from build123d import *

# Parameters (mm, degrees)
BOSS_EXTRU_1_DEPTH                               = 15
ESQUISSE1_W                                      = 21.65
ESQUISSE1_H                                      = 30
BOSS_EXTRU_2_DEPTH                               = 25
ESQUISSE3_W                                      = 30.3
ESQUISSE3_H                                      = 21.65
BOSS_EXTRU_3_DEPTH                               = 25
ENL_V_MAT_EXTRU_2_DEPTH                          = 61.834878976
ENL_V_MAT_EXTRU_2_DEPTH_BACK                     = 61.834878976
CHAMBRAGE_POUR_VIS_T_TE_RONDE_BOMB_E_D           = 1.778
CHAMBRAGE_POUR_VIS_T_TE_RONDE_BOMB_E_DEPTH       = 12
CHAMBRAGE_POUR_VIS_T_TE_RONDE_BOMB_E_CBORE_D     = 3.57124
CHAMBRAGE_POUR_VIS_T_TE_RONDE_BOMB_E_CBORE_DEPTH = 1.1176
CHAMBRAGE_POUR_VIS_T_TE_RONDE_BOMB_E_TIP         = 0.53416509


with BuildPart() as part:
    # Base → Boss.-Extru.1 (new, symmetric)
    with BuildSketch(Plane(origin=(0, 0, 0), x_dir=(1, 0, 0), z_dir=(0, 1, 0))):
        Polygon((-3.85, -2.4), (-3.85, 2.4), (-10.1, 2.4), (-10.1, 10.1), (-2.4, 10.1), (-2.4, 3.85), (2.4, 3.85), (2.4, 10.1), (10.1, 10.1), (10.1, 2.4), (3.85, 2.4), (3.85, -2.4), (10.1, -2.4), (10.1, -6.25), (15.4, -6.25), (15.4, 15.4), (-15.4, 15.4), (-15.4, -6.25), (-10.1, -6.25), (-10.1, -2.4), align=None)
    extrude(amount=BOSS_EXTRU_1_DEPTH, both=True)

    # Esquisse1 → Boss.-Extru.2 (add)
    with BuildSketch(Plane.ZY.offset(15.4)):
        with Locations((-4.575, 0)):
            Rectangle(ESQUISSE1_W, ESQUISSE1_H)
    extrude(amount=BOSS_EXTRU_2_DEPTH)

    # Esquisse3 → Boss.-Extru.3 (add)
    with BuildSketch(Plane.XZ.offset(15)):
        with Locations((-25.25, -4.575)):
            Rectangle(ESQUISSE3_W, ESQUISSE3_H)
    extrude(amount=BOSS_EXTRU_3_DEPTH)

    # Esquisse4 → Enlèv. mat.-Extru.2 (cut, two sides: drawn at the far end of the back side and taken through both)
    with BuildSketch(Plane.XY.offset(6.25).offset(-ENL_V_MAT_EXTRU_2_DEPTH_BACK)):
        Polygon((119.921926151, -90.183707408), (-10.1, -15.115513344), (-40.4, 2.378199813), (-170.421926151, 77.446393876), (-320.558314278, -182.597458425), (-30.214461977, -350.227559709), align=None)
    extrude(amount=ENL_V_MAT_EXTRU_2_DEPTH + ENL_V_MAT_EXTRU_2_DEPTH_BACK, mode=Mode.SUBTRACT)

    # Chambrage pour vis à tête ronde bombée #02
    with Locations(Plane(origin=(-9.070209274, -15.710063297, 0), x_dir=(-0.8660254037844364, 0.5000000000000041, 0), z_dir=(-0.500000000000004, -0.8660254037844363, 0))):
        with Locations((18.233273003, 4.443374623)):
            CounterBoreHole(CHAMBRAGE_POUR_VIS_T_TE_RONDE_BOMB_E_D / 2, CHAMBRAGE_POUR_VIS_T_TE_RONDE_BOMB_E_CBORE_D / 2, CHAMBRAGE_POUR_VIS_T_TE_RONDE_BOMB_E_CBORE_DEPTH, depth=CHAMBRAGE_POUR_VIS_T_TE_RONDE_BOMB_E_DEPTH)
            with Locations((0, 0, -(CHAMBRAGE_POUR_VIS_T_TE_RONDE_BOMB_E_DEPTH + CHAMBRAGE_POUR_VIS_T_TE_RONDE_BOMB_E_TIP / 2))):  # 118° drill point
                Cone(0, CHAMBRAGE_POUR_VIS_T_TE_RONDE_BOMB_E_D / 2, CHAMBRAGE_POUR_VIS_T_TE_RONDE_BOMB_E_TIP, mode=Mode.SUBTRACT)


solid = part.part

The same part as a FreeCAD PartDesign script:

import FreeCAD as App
import Part
import Sketcher

V = App.Vector
Q = App.Units.Quantity


def add_polygon(sketch, points):
    """Adds a closed chain of lines whose ends are joined by coincident constraints."""
    first, n = sketch.GeometryCount, len(points)
    for a, b in zip(points, points[1:] + points[:1]):
        sketch.addGeometry(Part.LineSegment(App.Vector(*a, 0), App.Vector(*b, 0)), False)
    for i in range(n):
        sketch.addConstraint(Sketcher.Constraint("Coincident", first + i, 2, first + (i + 1) % n, 1))

doc = App.newDocument("Part")
body = doc.addObject("PartDesign::Body", "Body")

# Sketch on XZ plane
sketch1 = doc.addObject("Sketcher::SketchObject", "Sketch")
body.addObject(sketch1)
sketch1.AttachmentSupport = (doc.XZ_Plane, [""])
sketch1.MapMode = "FlatFace"
add_polygon(sketch1, [(-3.85, 2.4), (-3.85, -2.4), (-10.1, -2.4), (-10.1, -10.1), (-2.4, -10.1), (-2.4, -3.85), (2.4, -3.85), (2.4, -10.1), (10.1, -10.1), (10.1, -2.4), (3.85, -2.4), (3.85, 2.4), (10.1, 2.4), (10.1, 6.25), (15.4, 6.25), (15.4, -15.4), (-15.4, -15.4), (-15.4, 6.25), (-10.1, 6.25), (-10.1, 2.4)])  # lines 0-19
sketch1.addConstraint([
    Sketcher.Constraint("Vertical", 0),
    Sketcher.Constraint("Horizontal", 1),
    Sketcher.Constraint("Vertical", 2),
    Sketcher.Constraint("Horizontal", 3),
    Sketcher.Constraint("Vertical", 4),
    Sketcher.Constraint("Horizontal", 5),
    Sketcher.Constraint("Vertical", 6),
    Sketcher.Constraint("Horizontal", 7),
    Sketcher.Constraint("Vertical", 8),
    Sketcher.Constraint("Horizontal", 9),
    Sketcher.Constraint("Vertical", 10),
    Sketcher.Constraint("Horizontal", 11),
    Sketcher.Constraint("Vertical", 12),
    Sketcher.Constraint("Horizontal", 13),
    Sketcher.Constraint("Vertical", 14),
    Sketcher.Constraint("Horizontal", 15),
    Sketcher.Constraint("Vertical", 16),
    Sketcher.Constraint("Horizontal", 17),
    Sketcher.Constraint("Vertical", 18),
    Sketcher.Constraint("Horizontal", 19),
    Sketcher.Constraint("Symmetric", 0, 2, 10, 2, -1, 1),
    Sketcher.Constraint("Symmetric", 8, 2, 18, 2, -1, 1),
    Sketcher.Constraint("Symmetric", 3, 2, 6, 2, -2),
    Sketcher.Constraint("Symmetric", 1, 2, 8, 2, -2),
    Sketcher.Constraint("Symmetric", 13, 2, 16, 2, -2),
    Sketcher.Constraint("Vertical", 8, 2, 11, 2),
    Sketcher.Constraint("Equal", 5, 0),
    Sketcher.Constraint("Equal", 7, 2),
    Sketcher.Constraint("Equal", 19, 4),
    Sketcher.Constraint("DistanceX", 3, 1, 3, 2, 7.7),
    Sketcher.Constraint("DistanceX", 5, 1, 5, 2, 4.8),
    Sketcher.Constraint("DistanceX", 13, 1, 13, 2, 5.3),
    Sketcher.Constraint("DistanceY", 14, 2, 8, 2, 13.0),
    Sketcher.Constraint("DistanceX", 1, 2, 1, 1, 6.25),
    Sketcher.Constraint("DistanceY", 12, 1, 12, 2, 3.85),
])
pad1 = doc.addObject("PartDesign::Pad", "Pad")
body.addObject(pad1)
pad1.Profile = sketch1
pad1.Length = 30
pad1.Midplane = True

# Sketch on YZ plane
sketch2 = doc.addObject("Sketcher::SketchObject", "Sketch001")
body.addObject(sketch2)
sketch2.AttachmentSupport = (doc.YZ_Plane, [""])
sketch2.MapMode = "FlatFace"
sketch2.AttachmentOffset = App.Placement(V(0, 0, -15.4), App.Rotation())
add_polygon(sketch2, [(15, -15.4), (-15, -15.4), (-15, 6.25), (15, 6.25)])  # lines 0-3
sketch2.addConstraint([
    Sketcher.Constraint("Horizontal", 0),
    Sketcher.Constraint("Vertical", 1),
    Sketcher.Constraint("Horizontal", 2),
    Sketcher.Constraint("Vertical", 3),
    Sketcher.Constraint("DistanceX", 0, 2, 0, 1, 30.0),
    Sketcher.Constraint("DistanceX", 0, 2, -1, 1, 15.0),
    Sketcher.Constraint("DistanceY", 1, 1, 1, 2, 21.65),
    Sketcher.Constraint("DistanceY", 0, 2, -1, 1, 15.4),
])
pad2 = doc.addObject("PartDesign::Pad", "Pad001")
body.addObject(pad2)
pad2.Profile = sketch2
pad2.Length = 25
pad2.Reversed = True

# Sketch on XZ plane
sketch3 = doc.addObject("Sketcher::SketchObject", "Sketch002")
body.addObject(sketch3)
sketch3.AttachmentSupport = (doc.XZ_Plane, [""])
sketch3.MapMode = "FlatFace"
sketch3.AttachmentOffset = App.Placement(V(0, 0, 15), App.Rotation())
add_polygon(sketch3, [(-40.4, 6.25), (-40.4, -15.4), (-10.1, -15.4), (-10.1, 6.25)])  # lines 0-3
sketch3.addConstraint([
    Sketcher.Constraint("Vertical", 0),
    Sketcher.Constraint("Horizontal", 1),
    Sketcher.Constraint("Vertical", 2),
    Sketcher.Constraint("Horizontal", 3),
    Sketcher.Constraint("DistanceX", 1, 1, 1, 2, 30.3),
    Sketcher.Constraint("DistanceY", 0, 2, 0, 1, 21.65),
    Sketcher.Constraint("DistanceX", 0, 2, -1, 1, 40.4),
    Sketcher.Constraint("DistanceY", 0, 2, -1, 1, 15.4),
])
pad3 = doc.addObject("PartDesign::Pad", "Pad002")
body.addObject(pad3)
pad3.Profile = sketch3
pad3.Length = 25

# Sketch on XY plane
sketch4 = doc.addObject("Sketcher::SketchObject", "Sketch003")
body.addObject(sketch4)
sketch4.AttachmentSupport = (doc.XY_Plane, [""])
sketch4.MapMode = "FlatFace"
sketch4.AttachmentOffset = App.Placement(V(0, 0, 6.25), App.Rotation())
add_polygon(sketch4, [(119.921926, -90.183707), (-10.1, -15.115513), (-40.4, 2.3782), (-170.421926, 77.446394), (-320.558314, -182.597458), (-30.214462, -350.22756)])  # lines 0-5
sketch4.addConstraint([
    Sketcher.Constraint("Parallel", 0, 1),
    Sketcher.Constraint("Parallel", 1, 2),
    Sketcher.Constraint("Perpendicular", 2, 3),
    Sketcher.Constraint("Perpendicular", 3, 4),
    Sketcher.Constraint("Perpendicular", 4, 5),
    Sketcher.Constraint("Equal", 0, 2),
    Sketcher.Constraint("Angle", 0, Q("150 deg")),
    Sketcher.Constraint("DistanceX", 0, 2, -1, 1, 10.1),
    Sketcher.Constraint("DistanceX", 1, 2, -1, 1, 40.4),
    Sketcher.Constraint("DistanceY", -1, 1, 1, 2, 2.3782),
    Sketcher.Constraint("DistanceY", 4, 2, 3, 2, 167.630101),
    Sketcher.Constraint("DistanceY", 3, 2, -1, 1, 182.597458),
])
pocket1 = doc.addObject("PartDesign::Pocket", "Pocket")
body.addObject(pocket1)
pocket1.Profile = sketch4
pocket1.Type = "ThroughAll"
pocket1.Midplane = True

# Sketch on an angled plane
sketch5 = doc.addObject("Sketcher::SketchObject", "Sketch004")
body.addObject(sketch5)
sketch5.Placement = App.Placement(V(-9.070209, -15.710063, 0), App.Rotation(V(-0.866025404, 0.5, 0), V(0, 0, -1), V(-0.5, -0.866025404, 0), "ZXY"))
sketch5.addGeometry(Part.Circle(V(18.233273, 4.443375, 0), V(0, 0, 1), 0.889), False)
sketch5.addConstraint([
    Sketcher.Constraint("Diameter", 0, 1.778),
    Sketcher.Constraint("DistanceX", -1, 1, 0, 3, 18.233273),
    Sketcher.Constraint("DistanceY", -1, 1, 0, 3, 4.443375),
])
doc.recompute()
hole = doc.addObject("PartDesign::Hole", "Hole")
body.addObject(hole)
hole.Profile = sketch5
hole.ThreadType = "None"
hole.Diameter = 1.778
hole.DepthType = "Dimension"
hole.Depth = 12
hole.DrillPoint = "Angled"
hole.DrillPointAngle = 118
hole.HoleCutType = "Counterbore"
hole.HoleCutDiameter = 3.57124
hole.HoleCutDepth = 1.1176

doc.recompute()
